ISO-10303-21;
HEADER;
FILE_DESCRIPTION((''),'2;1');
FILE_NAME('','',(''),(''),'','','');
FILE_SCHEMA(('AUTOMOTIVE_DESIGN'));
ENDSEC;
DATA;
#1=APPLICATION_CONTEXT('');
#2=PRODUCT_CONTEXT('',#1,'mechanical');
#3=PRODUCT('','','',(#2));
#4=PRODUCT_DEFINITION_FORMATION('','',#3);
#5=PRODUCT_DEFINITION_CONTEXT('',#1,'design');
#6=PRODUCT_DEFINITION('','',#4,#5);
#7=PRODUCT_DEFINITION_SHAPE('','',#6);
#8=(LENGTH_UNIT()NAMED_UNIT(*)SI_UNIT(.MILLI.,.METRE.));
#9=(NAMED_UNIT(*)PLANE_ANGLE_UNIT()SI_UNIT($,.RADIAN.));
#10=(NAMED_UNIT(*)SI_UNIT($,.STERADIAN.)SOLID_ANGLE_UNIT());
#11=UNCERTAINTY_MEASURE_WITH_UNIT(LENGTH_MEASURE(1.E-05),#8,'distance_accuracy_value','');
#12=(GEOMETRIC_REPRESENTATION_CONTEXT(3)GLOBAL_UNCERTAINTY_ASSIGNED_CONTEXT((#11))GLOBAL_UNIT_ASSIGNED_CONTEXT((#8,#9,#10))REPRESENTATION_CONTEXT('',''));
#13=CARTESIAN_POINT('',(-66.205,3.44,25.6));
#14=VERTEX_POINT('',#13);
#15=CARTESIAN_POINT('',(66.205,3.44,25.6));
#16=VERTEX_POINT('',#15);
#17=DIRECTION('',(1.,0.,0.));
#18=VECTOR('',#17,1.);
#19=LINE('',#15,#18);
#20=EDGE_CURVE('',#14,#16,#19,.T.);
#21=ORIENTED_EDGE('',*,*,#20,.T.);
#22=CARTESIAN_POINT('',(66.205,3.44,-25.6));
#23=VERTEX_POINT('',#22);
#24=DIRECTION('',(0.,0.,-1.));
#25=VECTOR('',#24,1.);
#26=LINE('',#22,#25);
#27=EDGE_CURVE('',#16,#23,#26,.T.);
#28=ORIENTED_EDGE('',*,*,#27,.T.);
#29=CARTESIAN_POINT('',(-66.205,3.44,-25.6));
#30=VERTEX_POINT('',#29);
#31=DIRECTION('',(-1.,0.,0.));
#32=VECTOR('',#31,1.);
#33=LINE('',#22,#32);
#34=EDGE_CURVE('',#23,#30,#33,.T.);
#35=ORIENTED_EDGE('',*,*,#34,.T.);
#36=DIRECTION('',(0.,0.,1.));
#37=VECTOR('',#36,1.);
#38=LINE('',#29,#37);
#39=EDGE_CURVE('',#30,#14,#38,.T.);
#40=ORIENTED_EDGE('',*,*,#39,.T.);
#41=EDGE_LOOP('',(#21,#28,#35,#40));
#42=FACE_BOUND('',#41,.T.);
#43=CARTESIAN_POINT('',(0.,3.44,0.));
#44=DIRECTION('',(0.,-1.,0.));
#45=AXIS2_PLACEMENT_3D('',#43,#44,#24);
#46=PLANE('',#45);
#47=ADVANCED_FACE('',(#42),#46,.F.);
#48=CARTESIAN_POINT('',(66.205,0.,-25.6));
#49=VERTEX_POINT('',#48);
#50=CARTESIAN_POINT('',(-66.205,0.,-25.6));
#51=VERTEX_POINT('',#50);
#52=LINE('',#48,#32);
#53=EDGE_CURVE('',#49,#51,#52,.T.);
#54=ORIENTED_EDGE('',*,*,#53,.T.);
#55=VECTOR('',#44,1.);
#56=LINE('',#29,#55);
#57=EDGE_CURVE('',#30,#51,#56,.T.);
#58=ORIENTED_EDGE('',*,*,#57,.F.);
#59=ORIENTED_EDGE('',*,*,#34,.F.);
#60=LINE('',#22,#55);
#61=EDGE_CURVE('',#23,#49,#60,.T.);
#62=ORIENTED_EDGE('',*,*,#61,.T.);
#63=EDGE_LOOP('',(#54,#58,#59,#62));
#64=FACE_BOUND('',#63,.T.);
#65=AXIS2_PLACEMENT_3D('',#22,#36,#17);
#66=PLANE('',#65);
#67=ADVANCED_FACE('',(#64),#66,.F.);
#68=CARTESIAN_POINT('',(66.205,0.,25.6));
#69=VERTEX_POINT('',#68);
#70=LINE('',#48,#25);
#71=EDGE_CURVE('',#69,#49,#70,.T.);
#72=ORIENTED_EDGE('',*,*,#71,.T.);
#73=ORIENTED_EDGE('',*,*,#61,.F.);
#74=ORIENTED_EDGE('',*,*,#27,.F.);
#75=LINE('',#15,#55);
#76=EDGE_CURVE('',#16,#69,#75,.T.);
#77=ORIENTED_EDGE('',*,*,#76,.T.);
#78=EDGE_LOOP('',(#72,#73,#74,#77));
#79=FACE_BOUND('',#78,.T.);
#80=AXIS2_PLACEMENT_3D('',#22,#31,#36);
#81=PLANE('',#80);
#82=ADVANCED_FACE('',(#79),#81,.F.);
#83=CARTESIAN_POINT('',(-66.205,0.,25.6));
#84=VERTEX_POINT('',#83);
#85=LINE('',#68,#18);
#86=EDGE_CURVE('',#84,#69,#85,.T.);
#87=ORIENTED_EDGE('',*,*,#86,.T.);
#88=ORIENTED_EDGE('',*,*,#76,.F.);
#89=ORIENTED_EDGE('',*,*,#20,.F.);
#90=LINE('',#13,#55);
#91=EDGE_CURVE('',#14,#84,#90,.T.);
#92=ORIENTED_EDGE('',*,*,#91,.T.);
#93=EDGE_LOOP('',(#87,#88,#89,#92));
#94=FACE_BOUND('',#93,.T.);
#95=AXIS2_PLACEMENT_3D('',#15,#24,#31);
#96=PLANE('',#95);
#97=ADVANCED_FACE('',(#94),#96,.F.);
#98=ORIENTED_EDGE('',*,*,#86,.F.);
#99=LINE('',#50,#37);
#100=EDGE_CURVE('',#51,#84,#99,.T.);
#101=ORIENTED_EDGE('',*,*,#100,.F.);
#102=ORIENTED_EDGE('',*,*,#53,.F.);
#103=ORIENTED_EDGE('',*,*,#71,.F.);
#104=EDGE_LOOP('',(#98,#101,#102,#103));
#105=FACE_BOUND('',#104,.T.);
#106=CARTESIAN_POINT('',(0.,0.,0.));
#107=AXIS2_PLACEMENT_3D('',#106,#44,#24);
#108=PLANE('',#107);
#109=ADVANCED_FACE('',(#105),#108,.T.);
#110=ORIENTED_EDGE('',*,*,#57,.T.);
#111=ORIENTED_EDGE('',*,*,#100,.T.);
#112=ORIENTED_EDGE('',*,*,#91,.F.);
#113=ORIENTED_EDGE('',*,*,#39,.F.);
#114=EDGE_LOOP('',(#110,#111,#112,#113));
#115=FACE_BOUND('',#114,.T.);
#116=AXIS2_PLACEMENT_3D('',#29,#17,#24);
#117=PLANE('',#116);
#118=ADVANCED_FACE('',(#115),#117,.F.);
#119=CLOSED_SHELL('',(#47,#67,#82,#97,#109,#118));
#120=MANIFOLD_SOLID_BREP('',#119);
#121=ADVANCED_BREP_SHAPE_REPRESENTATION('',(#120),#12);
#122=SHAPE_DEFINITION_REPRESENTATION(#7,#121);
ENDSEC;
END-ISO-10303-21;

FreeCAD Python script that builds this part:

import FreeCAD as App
import Part
import Sketcher

doc = App.newDocument("Part")
params = doc.addObject("Spreadsheet::Sheet", "Params")
for row, (alias, value) in enumerate([
    ("sketch1_height", "51.2 mm"),
    ("sketch1_width", "132.41 mm"),
    ("pad1_length", "3.44 mm"),
], start=1):
    params.set(f"A{row}", alias)
    params.set(f"B{row}", "=" + value)
    params.setAlias(f"B{row}", alias)

body = doc.addObject("PartDesign::Body", "Body")

sketch1 = body.newObject("Sketcher::SketchObject", "Sketch")
sketch1.AttachmentSupport = (doc.getObject("XZ_Plane"), [""])
sketch1.MapMode = "FlatFace"
sketch1.addGeometry([
    Part.LineSegment(App.Vector(-66.205, -25.6, 0), App.Vector(-66.205, 25.6, 0)),
    Part.LineSegment(App.Vector(-66.205, 25.6, 0), App.Vector(66.205, 25.6, 0)),
    Part.LineSegment(App.Vector(66.205, 25.6, 0), App.Vector(66.205, -25.6, 0)),
    Part.LineSegment(App.Vector(66.205, -25.6, 0), App.Vector(-66.205, -25.6, 0)),
], False)
sketch1.addConstraint([
    Sketcher.Constraint("Coincident", 0, 2, 1, 1),
    Sketcher.Constraint("Coincident", 1, 2, 2, 1),
    Sketcher.Constraint("Coincident", 2, 2, 3, 1),
    Sketcher.Constraint("Coincident", 3, 2, 0, 1),
    Sketcher.Constraint("Vertical", 0),
    Sketcher.Constraint("Horizontal", 1),
    Sketcher.Constraint("Vertical", 2),
    Sketcher.Constraint("Horizontal", 3),
    Sketcher.Constraint("Symmetric", 0, 2, 2, 2, -1, 1),
    Sketcher.Constraint("DistanceY", 0, 1, 0, 2, 51.2),
    Sketcher.Constraint("DistanceX", 1, 1, 1, 2, 132.41),
])
sketch1.setExpression("Constraints[9]", "Params.sketch1_height")
sketch1.setExpression("Constraints[10]", "Params.sketch1_width")
pad1 = body.newObject("PartDesign::Pad", "Pad")
pad1.Profile = sketch1
pad1.setExpression("Length", "Params.pad1_length")
pad1.Reversed = True

doc.recompute()
